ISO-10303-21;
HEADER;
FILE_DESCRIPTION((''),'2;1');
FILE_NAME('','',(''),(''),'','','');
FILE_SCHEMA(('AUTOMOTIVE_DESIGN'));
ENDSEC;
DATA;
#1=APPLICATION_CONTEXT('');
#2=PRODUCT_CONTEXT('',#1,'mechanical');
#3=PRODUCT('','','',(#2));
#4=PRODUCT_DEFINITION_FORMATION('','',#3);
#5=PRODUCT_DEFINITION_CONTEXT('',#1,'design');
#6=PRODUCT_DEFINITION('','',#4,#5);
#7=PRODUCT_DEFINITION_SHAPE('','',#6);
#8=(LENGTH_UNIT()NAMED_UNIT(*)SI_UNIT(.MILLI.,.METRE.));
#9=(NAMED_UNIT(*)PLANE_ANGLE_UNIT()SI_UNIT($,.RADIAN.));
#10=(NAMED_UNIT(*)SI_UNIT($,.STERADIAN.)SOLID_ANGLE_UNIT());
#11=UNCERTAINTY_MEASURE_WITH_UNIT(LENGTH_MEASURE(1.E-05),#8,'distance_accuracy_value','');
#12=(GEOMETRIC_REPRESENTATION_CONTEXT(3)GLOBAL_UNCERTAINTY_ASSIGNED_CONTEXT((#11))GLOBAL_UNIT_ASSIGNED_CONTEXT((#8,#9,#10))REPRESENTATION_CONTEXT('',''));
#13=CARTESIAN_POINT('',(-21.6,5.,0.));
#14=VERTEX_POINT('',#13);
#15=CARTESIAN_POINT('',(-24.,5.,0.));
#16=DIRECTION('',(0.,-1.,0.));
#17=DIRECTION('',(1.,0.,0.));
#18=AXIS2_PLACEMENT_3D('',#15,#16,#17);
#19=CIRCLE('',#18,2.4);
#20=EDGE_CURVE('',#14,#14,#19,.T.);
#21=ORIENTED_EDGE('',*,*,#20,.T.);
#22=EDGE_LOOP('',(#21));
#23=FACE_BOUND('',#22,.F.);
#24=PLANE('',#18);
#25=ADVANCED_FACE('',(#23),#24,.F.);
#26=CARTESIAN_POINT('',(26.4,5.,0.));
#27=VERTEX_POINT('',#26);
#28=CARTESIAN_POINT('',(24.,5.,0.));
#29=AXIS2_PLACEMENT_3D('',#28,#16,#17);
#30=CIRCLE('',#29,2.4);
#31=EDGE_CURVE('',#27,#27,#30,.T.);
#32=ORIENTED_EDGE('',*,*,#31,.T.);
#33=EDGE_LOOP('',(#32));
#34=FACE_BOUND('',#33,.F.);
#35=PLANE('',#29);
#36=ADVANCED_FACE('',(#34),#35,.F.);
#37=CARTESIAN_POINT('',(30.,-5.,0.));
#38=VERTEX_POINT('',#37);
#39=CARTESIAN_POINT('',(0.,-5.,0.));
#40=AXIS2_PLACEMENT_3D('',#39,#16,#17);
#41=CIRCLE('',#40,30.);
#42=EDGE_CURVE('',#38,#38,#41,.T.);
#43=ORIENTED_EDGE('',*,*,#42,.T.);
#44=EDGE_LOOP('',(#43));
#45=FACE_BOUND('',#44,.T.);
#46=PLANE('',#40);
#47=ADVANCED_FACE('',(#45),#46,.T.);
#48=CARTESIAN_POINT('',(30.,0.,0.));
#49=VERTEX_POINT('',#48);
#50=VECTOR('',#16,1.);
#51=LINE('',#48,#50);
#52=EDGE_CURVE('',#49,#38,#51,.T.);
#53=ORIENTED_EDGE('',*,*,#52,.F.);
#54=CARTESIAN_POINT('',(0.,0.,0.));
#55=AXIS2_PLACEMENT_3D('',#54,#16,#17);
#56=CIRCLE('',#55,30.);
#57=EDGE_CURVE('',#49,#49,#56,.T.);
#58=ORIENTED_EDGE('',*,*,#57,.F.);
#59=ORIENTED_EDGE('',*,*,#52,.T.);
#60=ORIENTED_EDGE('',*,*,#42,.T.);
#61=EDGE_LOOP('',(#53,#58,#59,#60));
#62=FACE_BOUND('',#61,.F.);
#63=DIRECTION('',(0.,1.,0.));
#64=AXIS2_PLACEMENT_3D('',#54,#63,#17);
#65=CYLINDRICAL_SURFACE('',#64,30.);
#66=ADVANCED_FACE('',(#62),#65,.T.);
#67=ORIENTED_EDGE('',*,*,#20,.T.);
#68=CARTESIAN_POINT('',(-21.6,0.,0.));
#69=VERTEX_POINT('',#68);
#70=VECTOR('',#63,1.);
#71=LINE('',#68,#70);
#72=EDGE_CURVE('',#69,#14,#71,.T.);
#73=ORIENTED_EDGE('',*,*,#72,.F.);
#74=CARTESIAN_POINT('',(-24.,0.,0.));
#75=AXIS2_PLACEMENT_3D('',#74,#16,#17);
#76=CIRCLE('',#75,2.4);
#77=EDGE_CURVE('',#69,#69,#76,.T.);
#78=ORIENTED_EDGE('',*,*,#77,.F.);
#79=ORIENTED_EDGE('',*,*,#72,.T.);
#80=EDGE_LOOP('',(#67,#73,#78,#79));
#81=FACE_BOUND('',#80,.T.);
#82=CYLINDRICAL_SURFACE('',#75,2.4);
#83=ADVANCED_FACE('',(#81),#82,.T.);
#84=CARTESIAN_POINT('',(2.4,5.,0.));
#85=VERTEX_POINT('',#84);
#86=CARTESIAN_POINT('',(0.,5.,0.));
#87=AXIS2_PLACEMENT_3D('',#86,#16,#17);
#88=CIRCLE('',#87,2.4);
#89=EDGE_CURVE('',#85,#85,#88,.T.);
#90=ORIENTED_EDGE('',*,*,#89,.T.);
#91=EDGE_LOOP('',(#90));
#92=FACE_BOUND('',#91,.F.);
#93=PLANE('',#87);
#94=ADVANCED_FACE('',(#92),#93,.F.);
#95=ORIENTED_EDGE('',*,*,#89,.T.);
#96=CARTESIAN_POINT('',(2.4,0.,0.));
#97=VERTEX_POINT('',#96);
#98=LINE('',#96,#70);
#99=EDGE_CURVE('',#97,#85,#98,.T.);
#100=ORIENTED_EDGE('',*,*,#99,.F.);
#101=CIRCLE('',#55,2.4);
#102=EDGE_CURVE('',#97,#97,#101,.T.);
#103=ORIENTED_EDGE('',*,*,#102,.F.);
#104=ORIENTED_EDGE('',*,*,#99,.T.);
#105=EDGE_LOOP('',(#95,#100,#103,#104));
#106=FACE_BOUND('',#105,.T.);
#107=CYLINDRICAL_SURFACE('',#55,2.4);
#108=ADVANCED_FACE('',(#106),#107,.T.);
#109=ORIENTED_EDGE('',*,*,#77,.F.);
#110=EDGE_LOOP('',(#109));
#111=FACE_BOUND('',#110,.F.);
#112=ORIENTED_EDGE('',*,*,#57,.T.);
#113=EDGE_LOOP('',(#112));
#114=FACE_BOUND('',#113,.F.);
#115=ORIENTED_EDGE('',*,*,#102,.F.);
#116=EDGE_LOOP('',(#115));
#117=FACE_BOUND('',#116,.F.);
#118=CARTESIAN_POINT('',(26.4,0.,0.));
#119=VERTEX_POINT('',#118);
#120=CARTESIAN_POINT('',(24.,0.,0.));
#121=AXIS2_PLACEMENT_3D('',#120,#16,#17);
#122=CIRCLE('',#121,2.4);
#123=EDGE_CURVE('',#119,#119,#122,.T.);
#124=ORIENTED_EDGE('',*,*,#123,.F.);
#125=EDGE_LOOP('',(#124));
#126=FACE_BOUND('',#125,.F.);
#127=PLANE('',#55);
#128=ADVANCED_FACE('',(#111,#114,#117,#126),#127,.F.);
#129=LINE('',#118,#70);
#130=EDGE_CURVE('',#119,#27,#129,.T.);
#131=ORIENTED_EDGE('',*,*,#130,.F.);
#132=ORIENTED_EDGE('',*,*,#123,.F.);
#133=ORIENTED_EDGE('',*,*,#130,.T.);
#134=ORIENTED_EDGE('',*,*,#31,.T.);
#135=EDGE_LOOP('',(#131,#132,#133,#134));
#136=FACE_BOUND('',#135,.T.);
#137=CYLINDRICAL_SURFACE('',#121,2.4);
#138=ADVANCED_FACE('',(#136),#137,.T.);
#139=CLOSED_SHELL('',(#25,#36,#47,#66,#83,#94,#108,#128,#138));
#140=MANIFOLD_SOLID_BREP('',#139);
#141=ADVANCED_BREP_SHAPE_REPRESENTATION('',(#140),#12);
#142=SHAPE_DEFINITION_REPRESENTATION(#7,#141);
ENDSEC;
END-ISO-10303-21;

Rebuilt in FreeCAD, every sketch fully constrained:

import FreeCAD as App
import Part
import Sketcher
from FreeCAD import Vector

doc = App.newDocument("Part")
body = doc.addObject("PartDesign::Body", "Body")

sketch1 = doc.addObject("Sketcher::SketchObject", "Sketch")
body.addObject(sketch1)
sketch1.AttachmentSupport = (doc.XZ_Plane, [""])
sketch1.MapMode = "FlatFace"
sketch1.addGeometry(Part.Circle(Vector(0, 0, 0), Vector(0, 0, 1), 30), False)
sketch1.addConstraint(Sketcher.Constraint("Coincident", 0, 3, -1, 1))
sketch1.addConstraint(Sketcher.Constraint("Diameter", 0, 60.0))
pad1 = doc.addObject("PartDesign::Pad", "Pad")
body.addObject(pad1)
pad1.Profile = sketch1
pad1.Length = 5

sketch2 = doc.addObject("Sketcher::SketchObject", "Sketch001")
body.addObject(sketch2)
sketch2.AttachmentSupport = (doc.XZ_Plane, [""])
sketch2.MapMode = "FlatFace"
sketch2.addGeometry(Part.Circle(Vector(0, 0, 0), Vector(0, 0, 1), 2.4), False)
sketch2.addGeometry(Part.Circle(Vector(-24, 0, 0), Vector(0, 0, 1), 2.4), False)
sketch2.addGeometry(Part.Circle(Vector(24, 0, 0), Vector(0, 0, 1), 2.4), False)
sketch2.addConstraint(Sketcher.Constraint("Coincident", 0, 3, -1, 1))
sketch2.addConstraint(Sketcher.Constraint("Equal", 0, 1))
sketch2.addConstraint(Sketcher.Constraint("Equal", 1, 2))
sketch2.addConstraint(Sketcher.Constraint("Symmetric", 1, 3, 2, 3, -1, 1))
sketch2.addConstraint(Sketcher.Constraint("PointOnObject", 1, 3, -1))
sketch2.addConstraint(Sketcher.Constraint("Diameter", 0, 4.8))
sketch2.addConstraint(Sketcher.Constraint("DistanceX", 1, 3, -1, 1, 24.0))
pad2 = doc.addObject("PartDesign::Pad", "Pad001")
body.addObject(pad2)
pad2.Profile = sketch2
pad2.Length = 5
pad2.Reversed = True

doc.recompute()
